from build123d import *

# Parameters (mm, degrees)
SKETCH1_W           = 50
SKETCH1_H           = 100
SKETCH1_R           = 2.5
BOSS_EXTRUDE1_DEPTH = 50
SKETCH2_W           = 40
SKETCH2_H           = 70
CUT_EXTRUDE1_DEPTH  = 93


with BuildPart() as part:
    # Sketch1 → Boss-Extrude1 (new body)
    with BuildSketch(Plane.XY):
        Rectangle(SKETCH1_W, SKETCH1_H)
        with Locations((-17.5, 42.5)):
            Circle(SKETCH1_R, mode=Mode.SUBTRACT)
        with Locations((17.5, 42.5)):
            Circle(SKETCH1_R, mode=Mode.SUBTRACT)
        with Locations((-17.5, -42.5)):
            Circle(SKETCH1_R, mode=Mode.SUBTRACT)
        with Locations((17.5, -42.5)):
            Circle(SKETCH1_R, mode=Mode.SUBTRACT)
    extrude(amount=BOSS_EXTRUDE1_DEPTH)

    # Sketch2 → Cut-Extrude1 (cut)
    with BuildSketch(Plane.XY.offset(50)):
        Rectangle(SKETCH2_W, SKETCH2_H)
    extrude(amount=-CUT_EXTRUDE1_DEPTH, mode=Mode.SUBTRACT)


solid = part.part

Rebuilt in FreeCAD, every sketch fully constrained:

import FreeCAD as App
import Part
import Sketcher


def add_polygon(sketch, points):
    """Adds a closed chain of lines whose ends are joined by coincident constraints."""
    first, n = sketch.GeometryCount, len(points)
    for a, b in zip(points, points[1:] + points[:1]):
        sketch.addGeometry(Part.LineSegment(App.Vector(*a, 0), App.Vector(*b, 0)), False)
    for i in range(n):
        sketch.addConstraint(Sketcher.Constraint("Coincident", first + i, 2, first + (i + 1) % n, 1))

doc = App.newDocument("Part")
body = doc.addObject("PartDesign::Body", "Body")

# Sketch on XY plane
sketch1 = body.newObject("Sketcher::SketchObject", "Sketch")
sketch1.AttachmentSupport = (doc.getObject("XY_Plane"), [""])
sketch1.MapMode = "FlatFace"
add_polygon(sketch1, [(-25, 50), (-25, -50), (25, -50), (25, 50)])  # lines 0-3
sketch1.addGeometry(Part.Circle(App.Vector(-17.5, -42.5, 0), App.Vector(0, 0, 1), 2.5), False)  # 4
sketch1.addGeometry(Part.Circle(App.Vector(17.5, -42.5, 0), App.Vector(0, 0, 1), 2.5), False)  # 5
sketch1.addGeometry(Part.Circle(App.Vector(-17.5, 42.5, 0), App.Vector(0, 0, 1), 2.5), False)  # 6
sketch1.addGeometry(Part.Circle(App.Vector(17.5, 42.5, 0), App.Vector(0, 0, 1), 2.5), False)  # 7
sketch1.addConstraint([
    Sketcher.Constraint("Vertical", 0),
    Sketcher.Constraint("Horizontal", 1),
    Sketcher.Constraint("Vertical", 2),
    Sketcher.Constraint("Horizontal", 3),
    Sketcher.Constraint("Equal", 4, 5),
    Sketcher.Constraint("Equal", 5, 6),
    Sketcher.Constraint("Equal", 6, 7),
    Sketcher.Constraint("Symmetric", 5, 3, 6, 3, -1, 1),
    Sketcher.Constraint("Symmetric", 4, 3, 7, 3, -1, 1),
    Sketcher.Constraint("Symmetric", 0, 2, 2, 2, -1, 1),
    Sketcher.Constraint("Symmetric", 4, 3, 5, 3, -2),
    Sketcher.Constraint("Diameter", 4, 5.0),
    Sketcher.Constraint("DistanceX", 1, 1, 1, 2, 50.0),
    Sketcher.Constraint("DistanceY", 0, 2, 0, 1, 100.0),
    Sketcher.Constraint("DistanceX", 4, 3, 5, 3, 35.0),
    Sketcher.Constraint("DistanceY", 4, 3, 6, 3, 85.0),
])
pad1 = body.newObject("PartDesign::Pad", "Pad")
pad1.Profile = sketch1
pad1.Length = 50

# Sketch on XY plane
sketch2 = body.newObject("Sketcher::SketchObject", "Sketch001")
sketch2.AttachmentSupport = (doc.getObject("XY_Plane"), [""])
sketch2.MapMode = "FlatFace"
sketch2.AttachmentOffset = App.Placement(App.Vector(0, 0, 50), App.Rotation())
add_polygon(sketch2, [(-20, 35), (-20, -35), (20, -35), (20, 35)])  # lines 0-3
sketch2.addConstraint([
    Sketcher.Constraint("Vertical", 0),
    Sketcher.Constraint("Horizontal", 1),
    Sketcher.Constraint("Vertical", 2),
    Sketcher.Constraint("Horizontal", 3),
    Sketcher.Constraint("Symmetric", 0, 2, 2, 2, -1, 1),
    Sketcher.Constraint("DistanceX", 1, 1, 1, 2, 40.0),
    Sketcher.Constraint("DistanceY", 0, 2, 0, 1, 70.0),
])
pocket1 = body.newObject("PartDesign::Pocket", "Pocket")
pocket1.Profile = sketch2
pocket1.Length = 93

doc.recompute()
